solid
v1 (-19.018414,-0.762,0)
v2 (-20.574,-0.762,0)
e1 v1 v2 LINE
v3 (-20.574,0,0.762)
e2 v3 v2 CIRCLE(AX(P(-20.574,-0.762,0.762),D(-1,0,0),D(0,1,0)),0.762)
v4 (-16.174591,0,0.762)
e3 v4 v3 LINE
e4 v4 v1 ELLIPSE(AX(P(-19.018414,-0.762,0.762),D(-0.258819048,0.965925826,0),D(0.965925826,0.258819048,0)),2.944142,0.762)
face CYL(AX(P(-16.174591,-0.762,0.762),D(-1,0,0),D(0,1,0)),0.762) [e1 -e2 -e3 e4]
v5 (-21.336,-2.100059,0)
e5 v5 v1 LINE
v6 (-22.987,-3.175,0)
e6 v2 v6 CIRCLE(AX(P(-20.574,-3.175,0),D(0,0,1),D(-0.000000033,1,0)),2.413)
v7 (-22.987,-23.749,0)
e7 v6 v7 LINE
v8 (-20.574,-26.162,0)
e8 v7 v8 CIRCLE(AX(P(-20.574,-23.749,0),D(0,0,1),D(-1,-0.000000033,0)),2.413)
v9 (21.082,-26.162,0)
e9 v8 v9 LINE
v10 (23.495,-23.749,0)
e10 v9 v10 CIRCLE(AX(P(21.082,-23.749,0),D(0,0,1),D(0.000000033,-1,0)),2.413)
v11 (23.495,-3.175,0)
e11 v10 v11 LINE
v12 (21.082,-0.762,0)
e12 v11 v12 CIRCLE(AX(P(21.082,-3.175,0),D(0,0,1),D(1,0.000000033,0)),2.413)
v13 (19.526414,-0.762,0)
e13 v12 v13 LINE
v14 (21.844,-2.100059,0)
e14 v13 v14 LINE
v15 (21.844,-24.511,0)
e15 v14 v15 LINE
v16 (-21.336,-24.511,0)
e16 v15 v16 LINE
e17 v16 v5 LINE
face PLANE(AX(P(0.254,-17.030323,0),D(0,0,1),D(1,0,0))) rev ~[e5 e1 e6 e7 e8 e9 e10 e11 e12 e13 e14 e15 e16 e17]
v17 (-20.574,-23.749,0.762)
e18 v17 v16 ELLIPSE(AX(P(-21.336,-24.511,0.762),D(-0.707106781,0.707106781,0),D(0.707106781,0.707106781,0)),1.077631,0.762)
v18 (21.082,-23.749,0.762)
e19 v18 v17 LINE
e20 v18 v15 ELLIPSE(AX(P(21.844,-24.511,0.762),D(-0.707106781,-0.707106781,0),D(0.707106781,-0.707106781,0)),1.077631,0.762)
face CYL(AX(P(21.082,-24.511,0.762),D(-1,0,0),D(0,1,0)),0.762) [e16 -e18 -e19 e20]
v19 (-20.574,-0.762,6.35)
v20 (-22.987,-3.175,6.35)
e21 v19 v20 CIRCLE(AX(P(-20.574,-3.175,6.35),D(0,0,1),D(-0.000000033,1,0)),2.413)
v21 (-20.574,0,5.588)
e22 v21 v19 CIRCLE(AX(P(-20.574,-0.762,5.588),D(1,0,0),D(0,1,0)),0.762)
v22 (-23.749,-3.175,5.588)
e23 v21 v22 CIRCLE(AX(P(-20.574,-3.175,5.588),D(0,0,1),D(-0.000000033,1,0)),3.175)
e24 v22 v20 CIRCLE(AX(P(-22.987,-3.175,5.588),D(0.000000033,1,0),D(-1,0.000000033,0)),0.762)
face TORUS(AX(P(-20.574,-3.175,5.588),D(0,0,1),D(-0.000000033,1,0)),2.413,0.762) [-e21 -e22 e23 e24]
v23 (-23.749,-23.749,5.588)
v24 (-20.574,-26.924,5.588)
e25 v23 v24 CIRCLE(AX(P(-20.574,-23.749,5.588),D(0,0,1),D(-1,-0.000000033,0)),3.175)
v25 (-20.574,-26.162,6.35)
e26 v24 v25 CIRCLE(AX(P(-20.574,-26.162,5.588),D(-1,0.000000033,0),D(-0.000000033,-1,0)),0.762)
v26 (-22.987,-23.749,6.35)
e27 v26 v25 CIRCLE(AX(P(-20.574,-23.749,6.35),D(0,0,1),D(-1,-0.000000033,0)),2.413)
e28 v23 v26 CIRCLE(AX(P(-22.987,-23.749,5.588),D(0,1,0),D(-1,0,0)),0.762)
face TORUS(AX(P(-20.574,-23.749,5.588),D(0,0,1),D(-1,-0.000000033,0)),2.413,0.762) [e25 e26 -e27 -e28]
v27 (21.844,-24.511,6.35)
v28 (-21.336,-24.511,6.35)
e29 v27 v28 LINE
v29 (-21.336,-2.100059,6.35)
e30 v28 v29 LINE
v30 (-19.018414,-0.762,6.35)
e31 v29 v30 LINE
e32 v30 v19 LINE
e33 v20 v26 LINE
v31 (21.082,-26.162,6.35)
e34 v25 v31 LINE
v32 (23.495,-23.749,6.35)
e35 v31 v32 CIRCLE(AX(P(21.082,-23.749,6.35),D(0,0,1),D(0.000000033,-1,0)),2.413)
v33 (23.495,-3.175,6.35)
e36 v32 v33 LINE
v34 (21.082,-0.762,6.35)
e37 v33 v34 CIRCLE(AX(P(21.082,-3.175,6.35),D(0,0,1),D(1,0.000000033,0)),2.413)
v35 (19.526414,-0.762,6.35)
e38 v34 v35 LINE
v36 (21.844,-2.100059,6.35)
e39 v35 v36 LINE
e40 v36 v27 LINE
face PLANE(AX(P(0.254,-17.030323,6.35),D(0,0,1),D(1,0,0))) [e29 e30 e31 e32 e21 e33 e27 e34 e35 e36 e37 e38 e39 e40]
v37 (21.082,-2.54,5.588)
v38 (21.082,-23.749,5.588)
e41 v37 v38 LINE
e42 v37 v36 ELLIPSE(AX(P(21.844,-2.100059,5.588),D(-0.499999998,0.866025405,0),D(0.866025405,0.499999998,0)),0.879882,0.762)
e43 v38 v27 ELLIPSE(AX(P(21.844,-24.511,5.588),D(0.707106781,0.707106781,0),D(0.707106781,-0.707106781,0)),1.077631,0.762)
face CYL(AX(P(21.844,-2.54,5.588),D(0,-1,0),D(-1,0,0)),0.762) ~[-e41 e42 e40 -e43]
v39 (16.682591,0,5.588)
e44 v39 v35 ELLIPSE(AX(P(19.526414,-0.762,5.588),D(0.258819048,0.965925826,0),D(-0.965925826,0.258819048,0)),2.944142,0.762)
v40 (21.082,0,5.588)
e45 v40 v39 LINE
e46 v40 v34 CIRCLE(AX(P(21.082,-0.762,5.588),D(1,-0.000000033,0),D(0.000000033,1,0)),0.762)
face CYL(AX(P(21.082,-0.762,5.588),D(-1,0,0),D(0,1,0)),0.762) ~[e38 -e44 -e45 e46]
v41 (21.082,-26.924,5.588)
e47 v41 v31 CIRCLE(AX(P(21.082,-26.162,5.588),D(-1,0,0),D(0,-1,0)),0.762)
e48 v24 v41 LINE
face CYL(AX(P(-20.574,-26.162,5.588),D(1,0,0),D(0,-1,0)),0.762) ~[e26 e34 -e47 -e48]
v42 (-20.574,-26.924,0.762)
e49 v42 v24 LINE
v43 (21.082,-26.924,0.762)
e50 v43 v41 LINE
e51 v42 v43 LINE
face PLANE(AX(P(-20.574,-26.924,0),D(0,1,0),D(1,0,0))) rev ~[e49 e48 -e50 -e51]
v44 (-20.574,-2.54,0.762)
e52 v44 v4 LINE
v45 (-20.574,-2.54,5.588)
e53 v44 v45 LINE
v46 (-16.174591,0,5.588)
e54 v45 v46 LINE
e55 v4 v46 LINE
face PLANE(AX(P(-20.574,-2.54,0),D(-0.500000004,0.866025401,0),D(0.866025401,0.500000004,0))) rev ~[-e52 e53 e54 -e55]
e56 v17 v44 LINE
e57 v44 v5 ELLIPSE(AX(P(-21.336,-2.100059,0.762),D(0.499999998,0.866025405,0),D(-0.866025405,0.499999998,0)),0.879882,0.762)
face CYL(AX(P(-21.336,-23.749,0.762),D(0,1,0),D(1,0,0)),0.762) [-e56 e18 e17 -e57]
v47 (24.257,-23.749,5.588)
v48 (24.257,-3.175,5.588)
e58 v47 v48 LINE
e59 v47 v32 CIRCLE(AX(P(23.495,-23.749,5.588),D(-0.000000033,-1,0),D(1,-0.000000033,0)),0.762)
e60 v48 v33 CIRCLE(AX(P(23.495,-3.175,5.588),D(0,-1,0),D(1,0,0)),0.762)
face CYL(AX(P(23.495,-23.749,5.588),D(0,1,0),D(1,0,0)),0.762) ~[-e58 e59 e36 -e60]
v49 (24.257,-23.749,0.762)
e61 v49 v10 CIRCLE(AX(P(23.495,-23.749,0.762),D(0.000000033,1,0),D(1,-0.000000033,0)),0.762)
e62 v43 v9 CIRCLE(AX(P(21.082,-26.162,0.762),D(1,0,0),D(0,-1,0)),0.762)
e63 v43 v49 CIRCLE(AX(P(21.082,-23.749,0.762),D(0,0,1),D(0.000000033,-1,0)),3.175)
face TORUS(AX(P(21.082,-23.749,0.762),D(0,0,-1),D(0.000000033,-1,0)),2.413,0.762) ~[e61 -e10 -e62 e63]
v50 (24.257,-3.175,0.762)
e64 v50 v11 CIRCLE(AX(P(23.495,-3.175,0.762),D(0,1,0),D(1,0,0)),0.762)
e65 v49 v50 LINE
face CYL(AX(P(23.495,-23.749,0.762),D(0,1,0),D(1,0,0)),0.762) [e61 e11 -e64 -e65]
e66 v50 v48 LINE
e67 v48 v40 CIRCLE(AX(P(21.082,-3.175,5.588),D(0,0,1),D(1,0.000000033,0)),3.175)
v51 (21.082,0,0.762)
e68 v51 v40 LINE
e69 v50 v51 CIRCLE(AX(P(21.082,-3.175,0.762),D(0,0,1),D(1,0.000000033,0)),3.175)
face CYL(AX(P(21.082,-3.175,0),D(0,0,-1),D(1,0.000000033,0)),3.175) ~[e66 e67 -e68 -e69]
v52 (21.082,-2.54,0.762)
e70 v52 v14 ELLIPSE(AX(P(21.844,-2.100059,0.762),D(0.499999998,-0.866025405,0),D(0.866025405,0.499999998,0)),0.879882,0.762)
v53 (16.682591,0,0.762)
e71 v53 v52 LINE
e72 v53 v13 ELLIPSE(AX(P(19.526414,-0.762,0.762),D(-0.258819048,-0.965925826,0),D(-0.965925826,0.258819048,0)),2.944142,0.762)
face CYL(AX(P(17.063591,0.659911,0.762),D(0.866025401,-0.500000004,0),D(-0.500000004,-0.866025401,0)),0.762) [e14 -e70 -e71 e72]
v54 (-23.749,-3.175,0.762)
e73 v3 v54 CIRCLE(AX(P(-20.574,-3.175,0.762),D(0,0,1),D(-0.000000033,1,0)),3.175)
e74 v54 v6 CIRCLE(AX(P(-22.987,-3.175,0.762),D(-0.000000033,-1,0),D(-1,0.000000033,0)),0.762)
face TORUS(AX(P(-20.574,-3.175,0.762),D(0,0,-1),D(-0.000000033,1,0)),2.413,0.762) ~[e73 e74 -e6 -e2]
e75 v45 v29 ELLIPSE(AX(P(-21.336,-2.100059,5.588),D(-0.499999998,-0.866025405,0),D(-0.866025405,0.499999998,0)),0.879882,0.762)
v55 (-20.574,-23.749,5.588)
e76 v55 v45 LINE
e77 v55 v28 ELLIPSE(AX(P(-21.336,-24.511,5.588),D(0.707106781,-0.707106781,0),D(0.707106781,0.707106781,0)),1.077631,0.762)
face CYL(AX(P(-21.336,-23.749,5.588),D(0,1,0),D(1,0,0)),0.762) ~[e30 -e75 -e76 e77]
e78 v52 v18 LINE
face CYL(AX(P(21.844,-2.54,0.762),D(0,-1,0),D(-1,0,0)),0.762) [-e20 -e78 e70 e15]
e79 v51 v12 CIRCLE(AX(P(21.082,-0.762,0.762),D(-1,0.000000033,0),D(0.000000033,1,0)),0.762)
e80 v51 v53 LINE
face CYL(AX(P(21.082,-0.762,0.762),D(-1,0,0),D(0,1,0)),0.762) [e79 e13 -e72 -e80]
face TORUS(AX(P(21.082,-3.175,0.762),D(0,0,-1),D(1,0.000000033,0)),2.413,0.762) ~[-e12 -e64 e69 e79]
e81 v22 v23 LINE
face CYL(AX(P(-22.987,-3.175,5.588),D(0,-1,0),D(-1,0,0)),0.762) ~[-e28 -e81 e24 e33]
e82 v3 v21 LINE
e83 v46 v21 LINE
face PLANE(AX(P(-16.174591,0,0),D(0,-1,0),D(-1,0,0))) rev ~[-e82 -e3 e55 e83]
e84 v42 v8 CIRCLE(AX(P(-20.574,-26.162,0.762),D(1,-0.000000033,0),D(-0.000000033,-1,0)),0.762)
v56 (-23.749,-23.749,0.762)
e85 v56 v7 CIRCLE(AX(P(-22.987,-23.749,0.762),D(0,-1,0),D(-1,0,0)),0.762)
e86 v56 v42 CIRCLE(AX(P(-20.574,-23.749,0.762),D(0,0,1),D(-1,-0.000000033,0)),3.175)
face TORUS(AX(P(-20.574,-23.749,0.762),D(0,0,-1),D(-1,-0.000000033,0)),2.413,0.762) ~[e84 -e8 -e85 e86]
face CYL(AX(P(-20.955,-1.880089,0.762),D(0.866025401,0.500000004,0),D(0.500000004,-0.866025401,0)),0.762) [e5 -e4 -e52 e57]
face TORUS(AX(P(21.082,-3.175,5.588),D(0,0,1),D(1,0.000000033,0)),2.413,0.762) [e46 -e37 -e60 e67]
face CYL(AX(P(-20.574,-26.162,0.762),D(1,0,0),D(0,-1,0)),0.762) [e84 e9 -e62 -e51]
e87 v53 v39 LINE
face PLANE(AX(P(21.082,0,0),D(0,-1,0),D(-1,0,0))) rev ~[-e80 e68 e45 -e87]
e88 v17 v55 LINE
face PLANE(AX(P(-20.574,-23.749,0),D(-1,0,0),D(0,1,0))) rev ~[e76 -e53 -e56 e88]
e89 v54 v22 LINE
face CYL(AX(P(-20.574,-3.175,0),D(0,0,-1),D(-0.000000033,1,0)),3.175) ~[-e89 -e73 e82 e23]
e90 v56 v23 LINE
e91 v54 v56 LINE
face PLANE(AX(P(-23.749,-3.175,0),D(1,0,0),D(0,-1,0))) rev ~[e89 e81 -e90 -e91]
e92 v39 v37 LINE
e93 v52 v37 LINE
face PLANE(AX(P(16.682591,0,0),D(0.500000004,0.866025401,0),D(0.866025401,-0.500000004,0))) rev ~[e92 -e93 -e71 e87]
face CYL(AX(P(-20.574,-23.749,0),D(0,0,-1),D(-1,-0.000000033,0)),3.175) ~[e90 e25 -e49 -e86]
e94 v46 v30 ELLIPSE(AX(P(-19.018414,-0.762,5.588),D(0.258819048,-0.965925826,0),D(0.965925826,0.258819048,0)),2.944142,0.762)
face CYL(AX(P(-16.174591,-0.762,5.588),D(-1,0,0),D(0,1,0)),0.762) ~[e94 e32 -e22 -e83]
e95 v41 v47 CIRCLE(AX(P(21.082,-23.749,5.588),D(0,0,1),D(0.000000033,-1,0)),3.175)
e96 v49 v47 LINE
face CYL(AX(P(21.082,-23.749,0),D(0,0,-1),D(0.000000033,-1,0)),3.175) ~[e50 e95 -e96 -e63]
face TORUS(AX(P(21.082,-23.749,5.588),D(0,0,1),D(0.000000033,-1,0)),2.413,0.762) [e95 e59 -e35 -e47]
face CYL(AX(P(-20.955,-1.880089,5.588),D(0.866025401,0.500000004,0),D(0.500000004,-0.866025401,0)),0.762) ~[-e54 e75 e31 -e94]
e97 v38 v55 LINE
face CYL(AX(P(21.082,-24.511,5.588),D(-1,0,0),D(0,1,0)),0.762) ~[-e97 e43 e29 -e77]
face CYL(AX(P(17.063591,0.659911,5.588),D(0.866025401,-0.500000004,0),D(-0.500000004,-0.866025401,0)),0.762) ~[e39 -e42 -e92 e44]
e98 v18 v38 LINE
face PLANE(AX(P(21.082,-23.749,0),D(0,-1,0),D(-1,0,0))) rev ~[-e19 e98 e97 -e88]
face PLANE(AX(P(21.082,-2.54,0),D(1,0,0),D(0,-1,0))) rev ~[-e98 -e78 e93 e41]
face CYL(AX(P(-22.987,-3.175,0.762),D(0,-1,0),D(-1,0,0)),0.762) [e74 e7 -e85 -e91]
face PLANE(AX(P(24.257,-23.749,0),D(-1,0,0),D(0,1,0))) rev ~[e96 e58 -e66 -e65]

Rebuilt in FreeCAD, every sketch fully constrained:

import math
import FreeCAD as App
import Part
import Sketcher
Q = App.Units.Quantity


def edges_at(feature, points):
    """Names of the edges that pass closest to the given points."""
    edges = feature.Shape.Edges
    near = lambda p: min(range(len(edges)), key=lambda i: edges[i].distToShape(Part.Vertex(*p))[0])
    return sorted({f"Edge{near(p) + 1}" for p in points})

doc = App.newDocument("Part")
params = doc.addObject("Spreadsheet::Sheet", "Params")
for row, (alias, value) in enumerate([
    ("sketch1_radius", "0.125 in"),
    ("sketch1_length", "0.2 in"),
    ("sketch1_width", "1.64 in"),
    ("sketch1_height", "0.81 in"),
    ("pad1_length", "0.25 in"),
    ("fillet_radius", "0.03 in"),
], start=1):
    params.set(f"A{row}", alias)
    params.set(f"B{row}", "=" + value)
    params.setAlias(f"B{row}", alias)

body = doc.addObject("PartDesign::Body", "Body")

# Sketch on XY plane
sketch1 = body.newObject("Sketcher::SketchObject", "Sketch")
sketch1.AttachmentSupport = (doc.getObject("XY_Plane"), [""])
sketch1.MapMode = "FlatFace"
sketch1.addGeometry(Part.LineSegment(App.Vector(-20.6, -2.5, 0), App.Vector(-16.2, 0, 0)), False)
sketch1.addGeometry(Part.LineSegment(App.Vector(-16.2, 0, 0), App.Vector(-20.6, 0, 0)), False)
sketch1.addGeometry(Part.ArcOfCircle(Part.Circle(App.Vector(-20.6, -3.2, 0), App.Vector(0, 0, 1), 3.2), math.radians(90), math.radians(180)), False)
sketch1.addGeometry(Part.LineSegment(App.Vector(-23.7, -3.2, 0), App.Vector(-23.7, -23.7, 0)), False)
sketch1.addGeometry(Part.ArcOfCircle(Part.Circle(App.Vector(-20.6, -23.7, 0), App.Vector(0, 0, 1), 3.2), math.radians(-180), math.radians(-90)), False)
sketch1.addGeometry(Part.LineSegment(App.Vector(-20.6, -26.9, 0), App.Vector(21.1, -26.9, 0)), False)
sketch1.addGeometry(Part.ArcOfCircle(Part.Circle(App.Vector(21.1, -23.7, 0), App.Vector(0, 0, 1), 3.2), math.radians(-90), math.radians(0)), False)
sketch1.addGeometry(Part.LineSegment(App.Vector(24.3, -23.7, 0), App.Vector(24.3, -3.2, 0)), False)
sketch1.addGeometry(Part.ArcOfCircle(Part.Circle(App.Vector(21.1, -3.2, 0), App.Vector(0, 0, 1), 3.2), math.radians(0), math.radians(90)), False)
sketch1.addGeometry(Part.LineSegment(App.Vector(21.1, 0, 0), App.Vector(16.7, 0, 0)), False)
sketch1.addGeometry(Part.LineSegment(App.Vector(16.7, 0, 0), App.Vector(21.1, -2.5, 0)), False)
sketch1.addGeometry(Part.LineSegment(App.Vector(21.1, -2.5, 0), App.Vector(21.1, -23.7, 0)), False)
sketch1.addGeometry(Part.LineSegment(App.Vector(21.1, -23.7, 0), App.Vector(-20.6, -23.7, 0)), False)
sketch1.addGeometry(Part.LineSegment(App.Vector(-20.6, -23.7, 0), App.Vector(-20.6, -2.5, 0)), False)
sketch1.addConstraint(Sketcher.Constraint("Coincident", 0, 2, 1, 1))
sketch1.addConstraint(Sketcher.Constraint("Tangent", 1, 2, 2, 1))
sketch1.addConstraint(Sketcher.Constraint("Tangent", 2, 2, 3, 1))
sketch1.addConstraint(Sketcher.Constraint("Tangent", 3, 2, 4, 1))
sketch1.addConstraint(Sketcher.Constraint("Tangent", 4, 2, 5, 1))
sketch1.addConstraint(Sketcher.Constraint("Tangent", 5, 2, 6, 1))
sketch1.addConstraint(Sketcher.Constraint("Tangent", 6, 2, 7, 1))
sketch1.addConstraint(Sketcher.Constraint("Tangent", 7, 2, 8, 1))
sketch1.addConstraint(Sketcher.Constraint("Tangent", 8, 2, 9, 1))
sketch1.addConstraint(Sketcher.Constraint("Coincident", 9, 2, 10, 1))
sketch1.addConstraint(Sketcher.Constraint("Coincident", 10, 2, 11, 1))
sketch1.addConstraint(Sketcher.Constraint("Coincident", 11, 2, 12, 1))
sketch1.addConstraint(Sketcher.Constraint("Coincident", 12, 2, 13, 1))
sketch1.addConstraint(Sketcher.Constraint("Coincident", 13, 2, 0, 1))
sketch1.addConstraint(Sketcher.Constraint("Horizontal", 1))
sketch1.addConstraint(Sketcher.Constraint("Vertical", 3))
sketch1.addConstraint(Sketcher.Constraint("Horizontal", 5))
sketch1.addConstraint(Sketcher.Constraint("Vertical", 7))
sketch1.addConstraint(Sketcher.Constraint("Horizontal", 9))
sketch1.addConstraint(Sketcher.Constraint("Vertical", 11))
sketch1.addConstraint(Sketcher.Constraint("Horizontal", 12))
sketch1.addConstraint(Sketcher.Constraint("Vertical", 13))
sketch1.addConstraint(Sketcher.Constraint("Coincident", 11, 2, 6, 3))
sketch1.addConstraint(Sketcher.Constraint("Coincident", 12, 2, 4, 3))
sketch1.addConstraint(Sketcher.Constraint("Equal", 2, 4))
sketch1.addConstraint(Sketcher.Constraint("Equal", 6, 8))
sketch1.addConstraint(Sketcher.Constraint("PointOnObject", 0, 2, -1))
sketch1.addConstraint(Sketcher.Constraint("PointOnObject", 8, 2, -1))
sketch1.addConstraint(Sketcher.Constraint("Horizontal", 10, 2, 13, 2))
sketch1.addConstraint(Sketcher.Constraint("Equal", 1, 9))
sketch1.addConstraint(Sketcher.Constraint("Angle", 0, Q("30 deg")))
sketch1.addConstraint(Sketcher.Constraint("Radius", 2, Q("0.125 in")))
sketch1.addConstraint(Sketcher.Constraint("Distance", 0, Q("0.2 in")))
sketch1.addConstraint(Sketcher.Constraint("DistanceX", 5, 1, 5, 2, Q("1.64 in")))
sketch1.addConstraint(Sketcher.Constraint("DistanceY", 3, 2, 3, 1, Q("0.81 in")))
sketch1.addConstraint(Sketcher.Constraint("DistanceX", 2, 3, -1, 1, Q("0.81 in")))
sketch1.setExpression("Constraints[31]", "Params.sketch1_radius")
sketch1.setExpression("Constraints[32]", "Params.sketch1_length")
sketch1.setExpression("Constraints[33]", "Params.sketch1_width")
sketch1.setExpression("Constraints[34]", "Params.sketch1_height")
pad1 = body.newObject("PartDesign::Pad", "Pad")
pad1.Profile = sketch1
pad1.setExpression("Length", "Params.pad1_length")
doc.recompute()

fillet = body.newObject("PartDesign::Fillet", "Fillet")
fillet.Base = (pad1, edges_at(pad1, [
    (-20.574, -13.145, 6.35),
    (-18.374, -1.27, 6.35),
    (-18.374, 0, 6.35),
    (-22.819, -0.93, 6.35),
    (-23.749, -13.462, 6.35),
    (-22.819, -25.994, 6.35),
    (0.254, -26.924, 6.35),
    (23.327, -25.994, 6.35),
    (24.257, -13.462, 6.35),
    (23.327, -0.93, 6.35),
    (18.882, 0, 6.35),
    (18.882, -1.27, 6.35),
    (21.082, -13.145, 6.35),
    (0.254, -23.749, 6.35),
    (-20.574, -13.145, 0),
    (-18.374, -1.27, 0),
    (-18.374, 0, 0),
    (-22.819, -0.93, 0),
    (-23.749, -13.462, 0),
    (-22.819, -25.994, 0),
    (0.254, -26.924, 0),
    (23.327, -25.994, 0),
    (24.257, -13.462, 0),
    (23.327, -0.93, 0),
    (18.882, 0, 0),
    (18.882, -1.27, 0),
    (21.082, -13.145, 0),
    (0.254, -23.749, 0),
]))
fillet.setExpression("Radius", "Params.fillet_radius")

doc.recompute()
